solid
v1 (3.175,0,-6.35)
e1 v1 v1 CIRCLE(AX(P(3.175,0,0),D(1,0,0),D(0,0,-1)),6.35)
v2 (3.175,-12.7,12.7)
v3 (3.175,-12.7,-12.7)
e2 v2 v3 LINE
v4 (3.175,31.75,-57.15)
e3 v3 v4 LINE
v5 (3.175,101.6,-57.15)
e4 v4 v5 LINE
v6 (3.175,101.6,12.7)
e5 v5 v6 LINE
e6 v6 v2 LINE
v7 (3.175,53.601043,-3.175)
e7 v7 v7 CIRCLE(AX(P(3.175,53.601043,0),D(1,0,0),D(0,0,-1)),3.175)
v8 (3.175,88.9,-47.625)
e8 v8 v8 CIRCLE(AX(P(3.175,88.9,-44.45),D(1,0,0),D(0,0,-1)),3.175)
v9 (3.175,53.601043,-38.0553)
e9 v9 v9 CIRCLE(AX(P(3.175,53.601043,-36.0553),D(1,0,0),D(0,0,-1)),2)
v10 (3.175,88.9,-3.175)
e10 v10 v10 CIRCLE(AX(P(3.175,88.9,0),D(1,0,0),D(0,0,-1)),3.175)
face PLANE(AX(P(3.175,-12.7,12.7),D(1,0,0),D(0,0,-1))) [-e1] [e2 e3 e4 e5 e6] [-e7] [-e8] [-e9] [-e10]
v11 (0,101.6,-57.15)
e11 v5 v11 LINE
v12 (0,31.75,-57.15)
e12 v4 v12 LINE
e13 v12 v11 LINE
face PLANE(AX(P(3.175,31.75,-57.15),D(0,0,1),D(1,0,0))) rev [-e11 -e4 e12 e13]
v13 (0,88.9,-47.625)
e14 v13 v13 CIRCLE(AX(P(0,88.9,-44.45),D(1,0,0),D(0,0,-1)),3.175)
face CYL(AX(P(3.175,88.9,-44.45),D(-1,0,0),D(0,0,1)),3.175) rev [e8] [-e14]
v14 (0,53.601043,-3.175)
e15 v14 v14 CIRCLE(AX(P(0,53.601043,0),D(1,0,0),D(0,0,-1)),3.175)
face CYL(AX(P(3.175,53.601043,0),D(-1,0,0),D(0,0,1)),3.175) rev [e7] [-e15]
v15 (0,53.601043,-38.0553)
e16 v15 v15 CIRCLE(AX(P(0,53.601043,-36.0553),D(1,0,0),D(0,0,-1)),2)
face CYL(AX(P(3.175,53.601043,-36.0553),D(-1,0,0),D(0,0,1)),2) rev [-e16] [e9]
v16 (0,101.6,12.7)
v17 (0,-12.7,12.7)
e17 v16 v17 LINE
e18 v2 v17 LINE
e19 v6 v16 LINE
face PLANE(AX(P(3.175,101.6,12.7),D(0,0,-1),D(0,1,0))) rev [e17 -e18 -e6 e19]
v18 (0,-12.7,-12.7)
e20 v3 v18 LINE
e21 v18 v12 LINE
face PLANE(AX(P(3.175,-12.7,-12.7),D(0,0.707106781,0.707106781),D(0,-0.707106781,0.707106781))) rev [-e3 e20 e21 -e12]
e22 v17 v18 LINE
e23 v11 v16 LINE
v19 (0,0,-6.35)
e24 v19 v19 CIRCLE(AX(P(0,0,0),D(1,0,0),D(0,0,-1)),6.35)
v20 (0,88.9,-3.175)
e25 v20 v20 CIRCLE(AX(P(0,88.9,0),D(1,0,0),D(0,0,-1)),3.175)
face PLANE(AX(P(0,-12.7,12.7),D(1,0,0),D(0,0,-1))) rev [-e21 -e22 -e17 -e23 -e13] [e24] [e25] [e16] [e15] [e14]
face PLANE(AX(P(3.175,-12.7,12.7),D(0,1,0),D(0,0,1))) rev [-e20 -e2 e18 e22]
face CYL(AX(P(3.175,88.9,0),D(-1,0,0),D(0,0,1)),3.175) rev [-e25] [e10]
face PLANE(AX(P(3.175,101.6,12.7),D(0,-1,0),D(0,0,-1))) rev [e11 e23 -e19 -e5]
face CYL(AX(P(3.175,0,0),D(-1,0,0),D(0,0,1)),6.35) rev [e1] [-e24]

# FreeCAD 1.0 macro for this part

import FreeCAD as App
import Part
import Sketcher
from FreeCAD import Vector
Q = App.Units.Quantity


def add_polygon(sketch, points):
    """Adds a closed chain of lines whose ends are joined by coincident constraints."""
    first, n = sketch.GeometryCount, len(points)
    for a, b in zip(points, points[1:] + points[:1]):
        sketch.addGeometry(Part.LineSegment(App.Vector(*a, 0), App.Vector(*b, 0)), False)
    for i in range(n):
        sketch.addConstraint(Sketcher.Constraint("Coincident", first + i, 2, first + (i + 1) % n, 1))

doc = App.newDocument("Part")
body = doc.addObject("PartDesign::Body", "Body")

# Sketch on YZ plane
sketch1 = doc.addObject("Sketcher::SketchObject", "Sketch")
body.addObject(sketch1)
sketch1.AttachmentSupport = (doc.YZ_Plane, [""])
sketch1.MapMode = "FlatFace"
add_polygon(sketch1, [(101.6, -57.1), (101.6, 12.7), (-12.7, 12.7), (-12.7, -12.7), (31.8, -57.1)])  # lines 0-4
sketch1.addGeometry(Part.Circle(Vector(0, 0, 0), Vector(0, 0, 1), 6.3), False)  # 5
sketch1.addGeometry(Part.Circle(Vector(53.6, -36.1, 0), Vector(0, 0, 1), 2), False)  # 6
sketch1.addGeometry(Part.Circle(Vector(88.9, -44.5, 0), Vector(0, 0, 1), 3.2), False)  # 7
sketch1.addGeometry(Part.Circle(Vector(53.6, 0, 0), Vector(0, 0, 1), 3.2), False)  # 8
sketch1.addGeometry(Part.Circle(Vector(88.9, 0, 0), Vector(0, 0, 1), 3.2), False)  # 9
sketch1.addConstraint([
    Sketcher.Constraint("Vertical", 0),
    Sketcher.Constraint("Horizontal", 1),
    Sketcher.Constraint("Vertical", 2),
    Sketcher.Constraint("Horizontal", 4),
    Sketcher.Constraint("Coincident", 5, 3, -1, 1),
    Sketcher.Constraint("Equal", 7, 8),
    Sketcher.Constraint("Equal", 8, 9),
    Sketcher.Constraint("PointOnObject", 8, 3, -1),
    Sketcher.Constraint("PointOnObject", 9, 3, -1),
    Sketcher.Constraint("Vertical", 6, 3, 8, 3),
    Sketcher.Constraint("Vertical", 7, 3, 9, 3),
    Sketcher.Constraint("Equal", 4, 0),
    Sketcher.Constraint("Diameter", 5, Q("0.5 in")),
    Sketcher.Constraint("Diameter", 7, Q("0.25 in")),
    Sketcher.Constraint("DistanceY", 2, 2, 2, 1, Q("1 in")),
    Sketcher.Constraint("DistanceX", 1, 2, 1, 1, Q("4.5 in")),
    Sketcher.Constraint("DistanceX", -1, 1, 0, 2, Q("4 in")),
    Sketcher.Constraint("Angle", 3, Q("-45 deg")),
    Sketcher.Constraint("DistanceX", 1, 2, 9, 3, Q("4 in")),
    Sketcher.Constraint("DistanceY", -1, 1, 0, 2, Q("0.5 in")),
    Sketcher.Constraint("DistanceY", 3, 2, 7, 3, Q("0.5 in")),
    Sketcher.Constraint("Diameter", 6, 4.0),
    Sketcher.Constraint("DistanceY", 6, 3, -1, 1, Q("1.4195 in")),
    Sketcher.Constraint("DistanceX", -1, 1, 6, 3, 53.601043),
])
pad1 = doc.addObject("PartDesign::Pad", "Pad")
body.addObject(pad1)
pad1.Profile = sketch1
pad1.Length = Q("0.125 in")

doc.recompute()
